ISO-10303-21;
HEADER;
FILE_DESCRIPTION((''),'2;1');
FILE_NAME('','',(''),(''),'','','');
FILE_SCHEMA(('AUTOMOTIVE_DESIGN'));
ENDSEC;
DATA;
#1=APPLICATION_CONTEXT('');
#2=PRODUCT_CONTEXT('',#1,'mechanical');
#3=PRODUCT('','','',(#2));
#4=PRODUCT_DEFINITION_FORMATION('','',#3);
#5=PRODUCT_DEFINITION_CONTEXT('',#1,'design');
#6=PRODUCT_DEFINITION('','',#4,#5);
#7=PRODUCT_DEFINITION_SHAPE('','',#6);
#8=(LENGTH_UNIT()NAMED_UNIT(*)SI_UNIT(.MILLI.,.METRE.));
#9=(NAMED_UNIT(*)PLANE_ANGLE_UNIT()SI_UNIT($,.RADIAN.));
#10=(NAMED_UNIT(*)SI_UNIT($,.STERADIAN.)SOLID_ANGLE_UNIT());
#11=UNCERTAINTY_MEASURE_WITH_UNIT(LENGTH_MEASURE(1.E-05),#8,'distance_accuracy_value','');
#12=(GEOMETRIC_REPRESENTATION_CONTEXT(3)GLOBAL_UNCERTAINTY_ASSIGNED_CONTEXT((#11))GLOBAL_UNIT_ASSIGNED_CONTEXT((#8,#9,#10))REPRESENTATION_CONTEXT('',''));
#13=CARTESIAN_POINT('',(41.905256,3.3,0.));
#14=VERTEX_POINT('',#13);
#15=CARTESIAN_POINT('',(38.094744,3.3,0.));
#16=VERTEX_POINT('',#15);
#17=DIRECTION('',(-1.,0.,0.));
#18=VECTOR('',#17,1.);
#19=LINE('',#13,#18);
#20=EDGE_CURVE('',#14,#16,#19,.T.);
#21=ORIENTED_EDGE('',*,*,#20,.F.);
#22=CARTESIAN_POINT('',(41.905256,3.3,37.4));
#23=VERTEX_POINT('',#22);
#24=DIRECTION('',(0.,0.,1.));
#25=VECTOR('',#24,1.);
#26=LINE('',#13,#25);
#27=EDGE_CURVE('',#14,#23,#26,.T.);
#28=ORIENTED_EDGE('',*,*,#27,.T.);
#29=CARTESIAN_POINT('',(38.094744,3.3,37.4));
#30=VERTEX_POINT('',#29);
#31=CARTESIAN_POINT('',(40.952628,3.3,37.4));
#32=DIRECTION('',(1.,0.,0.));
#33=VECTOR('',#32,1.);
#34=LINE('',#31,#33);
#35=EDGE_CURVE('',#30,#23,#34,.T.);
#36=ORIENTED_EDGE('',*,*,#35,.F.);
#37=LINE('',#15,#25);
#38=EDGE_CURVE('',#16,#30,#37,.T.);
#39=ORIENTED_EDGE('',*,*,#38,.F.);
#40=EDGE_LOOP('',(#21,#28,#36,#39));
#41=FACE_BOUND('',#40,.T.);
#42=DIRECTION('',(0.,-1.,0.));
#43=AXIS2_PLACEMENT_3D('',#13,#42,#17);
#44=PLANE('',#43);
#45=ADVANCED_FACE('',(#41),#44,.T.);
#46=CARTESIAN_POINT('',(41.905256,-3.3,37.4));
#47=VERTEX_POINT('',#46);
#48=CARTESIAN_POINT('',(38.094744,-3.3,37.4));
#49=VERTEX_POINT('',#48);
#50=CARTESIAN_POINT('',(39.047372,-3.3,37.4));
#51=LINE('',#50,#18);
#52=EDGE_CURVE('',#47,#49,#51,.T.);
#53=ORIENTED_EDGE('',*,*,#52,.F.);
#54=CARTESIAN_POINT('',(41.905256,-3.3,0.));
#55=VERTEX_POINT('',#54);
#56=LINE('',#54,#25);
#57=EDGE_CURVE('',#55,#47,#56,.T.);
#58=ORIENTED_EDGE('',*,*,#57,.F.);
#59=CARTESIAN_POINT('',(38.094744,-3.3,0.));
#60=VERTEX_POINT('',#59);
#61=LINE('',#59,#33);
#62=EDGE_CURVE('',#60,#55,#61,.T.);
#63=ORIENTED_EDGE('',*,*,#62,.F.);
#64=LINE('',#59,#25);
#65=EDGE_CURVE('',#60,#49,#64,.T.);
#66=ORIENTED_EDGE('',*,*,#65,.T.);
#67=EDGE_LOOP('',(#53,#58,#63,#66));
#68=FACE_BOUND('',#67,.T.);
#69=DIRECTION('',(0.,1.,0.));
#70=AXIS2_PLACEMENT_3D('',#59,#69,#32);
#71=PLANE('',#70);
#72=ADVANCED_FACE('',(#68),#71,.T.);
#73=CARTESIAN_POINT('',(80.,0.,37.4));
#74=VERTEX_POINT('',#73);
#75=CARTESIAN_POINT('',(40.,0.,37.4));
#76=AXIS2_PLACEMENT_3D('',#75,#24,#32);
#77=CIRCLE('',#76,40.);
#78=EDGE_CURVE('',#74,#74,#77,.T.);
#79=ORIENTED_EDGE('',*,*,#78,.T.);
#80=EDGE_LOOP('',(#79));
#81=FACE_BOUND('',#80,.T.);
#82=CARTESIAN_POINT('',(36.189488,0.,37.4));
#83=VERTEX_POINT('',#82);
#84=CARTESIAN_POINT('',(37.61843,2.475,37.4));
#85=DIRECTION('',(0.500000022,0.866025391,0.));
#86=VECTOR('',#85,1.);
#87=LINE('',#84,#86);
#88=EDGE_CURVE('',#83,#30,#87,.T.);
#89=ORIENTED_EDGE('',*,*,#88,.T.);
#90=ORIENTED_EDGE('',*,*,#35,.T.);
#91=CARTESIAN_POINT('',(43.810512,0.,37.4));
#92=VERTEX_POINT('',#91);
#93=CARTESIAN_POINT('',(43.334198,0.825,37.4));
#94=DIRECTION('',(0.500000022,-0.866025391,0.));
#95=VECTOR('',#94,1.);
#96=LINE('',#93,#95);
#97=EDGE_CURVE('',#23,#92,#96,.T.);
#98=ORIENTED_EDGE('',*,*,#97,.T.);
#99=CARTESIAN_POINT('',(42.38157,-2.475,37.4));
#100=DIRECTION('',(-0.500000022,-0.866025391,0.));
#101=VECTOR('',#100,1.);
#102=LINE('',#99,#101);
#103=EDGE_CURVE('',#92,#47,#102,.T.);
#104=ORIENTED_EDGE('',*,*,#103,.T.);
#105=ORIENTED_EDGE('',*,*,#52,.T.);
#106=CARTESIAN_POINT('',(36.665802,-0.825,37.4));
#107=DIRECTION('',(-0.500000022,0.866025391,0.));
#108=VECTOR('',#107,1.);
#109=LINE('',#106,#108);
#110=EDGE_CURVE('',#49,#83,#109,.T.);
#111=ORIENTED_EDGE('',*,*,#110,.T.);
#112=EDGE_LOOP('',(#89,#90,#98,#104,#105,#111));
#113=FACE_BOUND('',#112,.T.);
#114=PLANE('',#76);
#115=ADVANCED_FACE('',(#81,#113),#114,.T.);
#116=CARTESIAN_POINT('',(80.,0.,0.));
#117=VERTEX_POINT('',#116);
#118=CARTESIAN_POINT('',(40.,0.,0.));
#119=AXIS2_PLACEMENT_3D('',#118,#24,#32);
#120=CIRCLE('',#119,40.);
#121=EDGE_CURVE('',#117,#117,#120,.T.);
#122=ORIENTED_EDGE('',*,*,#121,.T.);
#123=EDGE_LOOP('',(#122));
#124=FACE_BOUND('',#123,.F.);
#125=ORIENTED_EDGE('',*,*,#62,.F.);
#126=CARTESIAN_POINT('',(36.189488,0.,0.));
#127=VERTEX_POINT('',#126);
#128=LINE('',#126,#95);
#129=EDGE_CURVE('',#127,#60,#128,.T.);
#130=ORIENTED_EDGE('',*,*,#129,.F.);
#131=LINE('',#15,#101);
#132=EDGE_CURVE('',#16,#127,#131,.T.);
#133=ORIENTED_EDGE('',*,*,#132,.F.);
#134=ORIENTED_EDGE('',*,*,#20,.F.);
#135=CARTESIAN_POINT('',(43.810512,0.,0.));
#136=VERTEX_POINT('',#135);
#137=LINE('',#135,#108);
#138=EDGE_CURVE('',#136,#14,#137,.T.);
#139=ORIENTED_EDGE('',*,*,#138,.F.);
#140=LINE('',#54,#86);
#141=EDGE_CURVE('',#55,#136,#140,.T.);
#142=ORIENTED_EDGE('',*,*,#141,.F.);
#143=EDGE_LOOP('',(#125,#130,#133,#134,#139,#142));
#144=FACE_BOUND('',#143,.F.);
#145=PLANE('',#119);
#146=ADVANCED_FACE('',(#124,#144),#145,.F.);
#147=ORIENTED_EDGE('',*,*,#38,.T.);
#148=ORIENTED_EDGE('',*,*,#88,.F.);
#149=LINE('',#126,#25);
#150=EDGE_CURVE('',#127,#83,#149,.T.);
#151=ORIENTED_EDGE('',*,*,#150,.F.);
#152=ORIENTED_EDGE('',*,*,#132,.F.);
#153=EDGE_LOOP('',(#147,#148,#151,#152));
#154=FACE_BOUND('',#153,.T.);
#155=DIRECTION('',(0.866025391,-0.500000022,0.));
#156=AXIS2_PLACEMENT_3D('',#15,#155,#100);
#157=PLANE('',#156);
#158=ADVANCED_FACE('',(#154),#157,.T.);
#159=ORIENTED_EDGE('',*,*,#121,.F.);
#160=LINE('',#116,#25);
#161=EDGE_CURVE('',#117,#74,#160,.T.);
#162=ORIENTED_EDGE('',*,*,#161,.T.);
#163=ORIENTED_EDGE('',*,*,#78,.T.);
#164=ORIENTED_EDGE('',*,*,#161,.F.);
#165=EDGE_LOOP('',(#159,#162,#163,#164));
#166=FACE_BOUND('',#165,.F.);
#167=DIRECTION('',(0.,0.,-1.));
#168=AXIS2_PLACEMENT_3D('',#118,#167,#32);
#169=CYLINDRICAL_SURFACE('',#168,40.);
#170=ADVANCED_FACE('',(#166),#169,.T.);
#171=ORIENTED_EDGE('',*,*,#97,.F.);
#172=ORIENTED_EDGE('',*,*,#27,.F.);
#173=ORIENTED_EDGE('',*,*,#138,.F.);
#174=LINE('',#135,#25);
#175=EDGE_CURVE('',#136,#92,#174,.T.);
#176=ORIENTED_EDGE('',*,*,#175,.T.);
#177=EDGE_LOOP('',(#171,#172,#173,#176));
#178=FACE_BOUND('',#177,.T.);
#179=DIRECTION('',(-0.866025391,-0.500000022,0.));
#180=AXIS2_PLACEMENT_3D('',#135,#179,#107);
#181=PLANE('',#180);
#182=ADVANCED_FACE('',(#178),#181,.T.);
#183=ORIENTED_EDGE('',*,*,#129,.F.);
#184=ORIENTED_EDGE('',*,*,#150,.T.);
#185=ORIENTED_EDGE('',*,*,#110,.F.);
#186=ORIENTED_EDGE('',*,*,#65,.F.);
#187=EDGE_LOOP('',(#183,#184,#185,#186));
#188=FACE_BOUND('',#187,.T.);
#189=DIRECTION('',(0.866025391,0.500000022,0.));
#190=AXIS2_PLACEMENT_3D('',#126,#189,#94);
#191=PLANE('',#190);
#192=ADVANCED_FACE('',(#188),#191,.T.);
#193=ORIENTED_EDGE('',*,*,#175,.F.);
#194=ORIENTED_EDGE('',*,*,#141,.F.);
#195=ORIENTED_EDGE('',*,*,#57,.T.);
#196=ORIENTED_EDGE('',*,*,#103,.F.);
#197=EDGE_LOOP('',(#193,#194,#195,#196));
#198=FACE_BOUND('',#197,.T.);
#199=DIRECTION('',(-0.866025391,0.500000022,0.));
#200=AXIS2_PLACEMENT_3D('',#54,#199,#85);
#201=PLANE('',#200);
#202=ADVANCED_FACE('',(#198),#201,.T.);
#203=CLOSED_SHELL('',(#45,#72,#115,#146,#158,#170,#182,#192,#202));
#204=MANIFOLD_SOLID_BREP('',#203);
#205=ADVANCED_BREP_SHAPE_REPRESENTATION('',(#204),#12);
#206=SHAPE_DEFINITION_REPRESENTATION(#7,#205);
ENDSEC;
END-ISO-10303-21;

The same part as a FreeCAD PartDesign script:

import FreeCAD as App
import Part
import Sketcher

V = App.Vector
Q = App.Units.Quantity

doc = App.newDocument("Part")
body = doc.addObject("PartDesign::Body", "Body")

sketch1 = body.newObject("Sketcher::SketchObject", "Sketch")
sketch1.AttachmentSupport = (doc.getObject("XY_Plane"), [""])
sketch1.MapMode = "FlatFace"
sketch1.addGeometry(Part.Circle(V(40, 0, 0), V(0, 0, 1), 40), False)
sketch1.addConstraint(Sketcher.Constraint("PointOnObject", 0, 3, -1))
sketch1.addConstraint(Sketcher.Constraint("Diameter", 0, Q("80 mm")))
sketch1.addConstraint(Sketcher.Constraint("DistanceX", -1, 1, 0, 3, Q("40 mm")))
pad1 = body.newObject("PartDesign::Pad", "Pad")
pad1.Profile = sketch1
pad1.Length = 37.4

sketch2 = body.newObject("Sketcher::SketchObject", "Sketch001")
sketch2.AttachmentSupport = (doc.getObject("XY_Plane"), [""])
sketch2.MapMode = "FlatFace"
sketch2.addGeometry(Part.LineSegment(V(43.8, 0, 0), V(41.9, 3.3, 0)), False)
sketch2.addGeometry(Part.LineSegment(V(41.9, 3.3, 0), V(38.1, 3.3, 0)), False)
sketch2.addGeometry(Part.LineSegment(V(38.1, 3.3, 0), V(36.2, 0, 0)), False)
sketch2.addGeometry(Part.LineSegment(V(36.2, 0, 0), V(38.1, -3.3, 0)), False)
sketch2.addGeometry(Part.LineSegment(V(38.1, -3.3, 0), V(41.9, -3.3, 0)), False)
sketch2.addGeometry(Part.LineSegment(V(41.9, -3.3, 0), V(43.8, 0, 0)), False)
sketch2.addConstraint(Sketcher.Constraint("Coincident", 0, 2, 1, 1))
sketch2.addConstraint(Sketcher.Constraint("Coincident", 1, 2, 2, 1))
sketch2.addConstraint(Sketcher.Constraint("Coincident", 2, 2, 3, 1))
sketch2.addConstraint(Sketcher.Constraint("Coincident", 3, 2, 4, 1))
sketch2.addConstraint(Sketcher.Constraint("Coincident", 4, 2, 5, 1))
sketch2.addConstraint(Sketcher.Constraint("Coincident", 5, 2, 0, 1))
sketch2.addConstraint(Sketcher.Constraint("Horizontal", 1))
sketch2.addConstraint(Sketcher.Constraint("Horizontal", 4))
sketch2.addConstraint(Sketcher.Constraint("Symmetric", 1, 2, 3, 2, -1))
sketch2.addConstraint(Sketcher.Constraint("PointOnObject", 2, 2, -1))
sketch2.addConstraint(Sketcher.Constraint("PointOnObject", 5, 2, -1))
sketch2.addConstraint(Sketcher.Constraint("Parallel", 0, 3))
sketch2.addConstraint(Sketcher.Constraint("Parallel", 2, 5))
sketch2.addConstraint(Sketcher.Constraint("Angle", 0, Q("120.000001 deg")))
sketch2.addConstraint(Sketcher.Constraint("DistanceY", -1, 1, 0, 2, Q("3.3 mm")))
sketch2.addConstraint(Sketcher.Constraint("DistanceX", 1, 2, 1, 1, Q("3.810512 mm")))
sketch2.addConstraint(Sketcher.Constraint("DistanceX", -1, 1, 0, 2, Q("41.905256 mm")))
pocket1 = body.newObject("PartDesign::Pocket", "Pocket")
pocket1.Profile = sketch2
pocket1.Type = "ThroughAll"
pocket1.Reversed = True

doc.recompute()
